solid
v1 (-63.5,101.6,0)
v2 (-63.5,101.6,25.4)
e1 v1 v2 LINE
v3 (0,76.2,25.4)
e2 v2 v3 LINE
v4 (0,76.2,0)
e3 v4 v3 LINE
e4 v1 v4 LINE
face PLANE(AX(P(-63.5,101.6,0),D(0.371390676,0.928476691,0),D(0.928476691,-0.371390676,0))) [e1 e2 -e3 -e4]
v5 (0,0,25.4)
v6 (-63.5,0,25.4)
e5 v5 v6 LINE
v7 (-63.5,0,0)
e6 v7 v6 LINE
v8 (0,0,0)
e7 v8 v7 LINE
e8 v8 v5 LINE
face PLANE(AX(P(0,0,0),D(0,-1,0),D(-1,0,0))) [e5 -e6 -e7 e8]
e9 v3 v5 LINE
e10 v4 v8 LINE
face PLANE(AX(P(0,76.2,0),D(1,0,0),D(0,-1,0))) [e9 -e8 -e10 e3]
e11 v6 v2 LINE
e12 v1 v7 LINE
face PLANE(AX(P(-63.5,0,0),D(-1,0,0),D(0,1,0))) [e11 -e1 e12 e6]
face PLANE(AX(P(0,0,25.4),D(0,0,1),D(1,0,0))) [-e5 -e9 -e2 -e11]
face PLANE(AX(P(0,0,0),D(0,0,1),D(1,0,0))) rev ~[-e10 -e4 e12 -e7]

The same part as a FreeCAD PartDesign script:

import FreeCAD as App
import Part
import Sketcher
Q = App.Units.Quantity

doc = App.newDocument("Part")
body = doc.addObject("PartDesign::Body", "Body")

# Sketch on XY plane
sketch1 = body.newObject("Sketcher::SketchObject", "Sketch")
sketch1.AttachmentSupport = (doc.getObject("XY_Plane"), [""])
sketch1.MapMode = "FlatFace"
sketch1.addGeometry(Part.LineSegment(App.Vector(-64, 0, 0), App.Vector(0, 0, 0)), False)
sketch1.addGeometry(Part.LineSegment(App.Vector(0, 0, 0), App.Vector(0, 76, 0)), False)
sketch1.addGeometry(Part.LineSegment(App.Vector(0, 76, 0), App.Vector(-64, 102, 0)), False)
sketch1.addGeometry(Part.LineSegment(App.Vector(-64, 102, 0), App.Vector(-64, 0, 0)), False)
sketch1.addConstraint(Sketcher.Constraint("Coincident", 0, 2, 1, 1))
sketch1.addConstraint(Sketcher.Constraint("Coincident", 1, 2, 2, 1))
sketch1.addConstraint(Sketcher.Constraint("Coincident", 2, 2, 3, 1))
sketch1.addConstraint(Sketcher.Constraint("Coincident", 3, 2, 0, 1))
sketch1.addConstraint(Sketcher.Constraint("Horizontal", 0))
sketch1.addConstraint(Sketcher.Constraint("Vertical", 1))
sketch1.addConstraint(Sketcher.Constraint("Vertical", 3))
sketch1.addConstraint(Sketcher.Constraint("Coincident", 0, 2, -1, 1))
sketch1.addConstraint(Sketcher.Constraint("DistanceY", 1, 1, 1, 2, Q("3 in")))
sketch1.addConstraint(Sketcher.Constraint("DistanceY", 3, 2, 3, 1, Q("4 in")))
sketch1.addConstraint(Sketcher.Constraint("DistanceX", 0, 1, 0, 2, Q("2.5 in")))
pad1 = body.newObject("PartDesign::Pad", "Pad")
pad1.Profile = sketch1
pad1.Length = Q("1 in")

doc.recompute()
